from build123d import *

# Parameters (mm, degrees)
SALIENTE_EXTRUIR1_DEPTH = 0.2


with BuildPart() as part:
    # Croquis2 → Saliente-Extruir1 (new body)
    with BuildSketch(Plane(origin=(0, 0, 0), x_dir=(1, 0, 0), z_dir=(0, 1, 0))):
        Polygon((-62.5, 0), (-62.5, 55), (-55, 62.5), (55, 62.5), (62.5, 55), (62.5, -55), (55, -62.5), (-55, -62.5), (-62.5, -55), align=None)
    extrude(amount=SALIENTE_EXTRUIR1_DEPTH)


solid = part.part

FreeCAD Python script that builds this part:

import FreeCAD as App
import Part
import Sketcher
from FreeCAD import Vector
Q = App.Units.Quantity


def add_polygon(sketch, points):
    """Adds a closed chain of lines whose ends are joined by coincident constraints."""
    first, n = sketch.GeometryCount, len(points)
    for a, b in zip(points, points[1:] + points[:1]):
        sketch.addGeometry(Part.LineSegment(App.Vector(*a, 0), App.Vector(*b, 0)), False)
    for i in range(n):
        sketch.addConstraint(Sketcher.Constraint("Coincident", first + i, 2, first + (i + 1) % n, 1))

doc = App.newDocument("Part")
body = doc.addObject("PartDesign::Body", "Body")

# Sketch on XZ plane
sketch1 = body.newObject("Sketcher::SketchObject", "Sketch")
sketch1.AttachmentSupport = (doc.getObject("XZ_Plane"), [""])
sketch1.MapMode = "FlatFace"
add_polygon(sketch1, [(-62, -55), (-62, 55), (-55, 62), (55, 62), (62, 55), (62, -55), (55, -62), (-55, -62)])  # lines 0-7
sketch1.addConstraint([
    Sketcher.Constraint("Vertical", 0),
    Sketcher.Constraint("Horizontal", 2),
    Sketcher.Constraint("Vertical", 4),
    Sketcher.Constraint("Horizontal", 6),
    Sketcher.Constraint("Symmetric", 0, 2, 4, 2, -1, 1),
    Sketcher.Constraint("Symmetric", 1, 2, 5, 2, -1, 1),
    Sketcher.Constraint("Perpendicular", 1, 3),
    Sketcher.Constraint("Perpendicular", 5, 7),
    Sketcher.Constraint("Horizontal", 0, 2, 3, 2),
    Sketcher.Constraint("Horizontal", 4, 2, 7, 2),
    Sketcher.Constraint("Vertical", 2, 2, 5, 2),
    Sketcher.Constraint("Equal", 6, 0),
    Sketcher.Constraint("DistanceX", 2, 1, 2, 2, Q("110 mm")),
    Sketcher.Constraint("DistanceX", 0, 2, 3, 2, Q("125 mm")),
])
pad1 = body.newObject("PartDesign::Pad", "Pad")
pad1.Profile = sketch1
pad1.Length = 0.2
pad1.Reversed = True

doc.recompute()
